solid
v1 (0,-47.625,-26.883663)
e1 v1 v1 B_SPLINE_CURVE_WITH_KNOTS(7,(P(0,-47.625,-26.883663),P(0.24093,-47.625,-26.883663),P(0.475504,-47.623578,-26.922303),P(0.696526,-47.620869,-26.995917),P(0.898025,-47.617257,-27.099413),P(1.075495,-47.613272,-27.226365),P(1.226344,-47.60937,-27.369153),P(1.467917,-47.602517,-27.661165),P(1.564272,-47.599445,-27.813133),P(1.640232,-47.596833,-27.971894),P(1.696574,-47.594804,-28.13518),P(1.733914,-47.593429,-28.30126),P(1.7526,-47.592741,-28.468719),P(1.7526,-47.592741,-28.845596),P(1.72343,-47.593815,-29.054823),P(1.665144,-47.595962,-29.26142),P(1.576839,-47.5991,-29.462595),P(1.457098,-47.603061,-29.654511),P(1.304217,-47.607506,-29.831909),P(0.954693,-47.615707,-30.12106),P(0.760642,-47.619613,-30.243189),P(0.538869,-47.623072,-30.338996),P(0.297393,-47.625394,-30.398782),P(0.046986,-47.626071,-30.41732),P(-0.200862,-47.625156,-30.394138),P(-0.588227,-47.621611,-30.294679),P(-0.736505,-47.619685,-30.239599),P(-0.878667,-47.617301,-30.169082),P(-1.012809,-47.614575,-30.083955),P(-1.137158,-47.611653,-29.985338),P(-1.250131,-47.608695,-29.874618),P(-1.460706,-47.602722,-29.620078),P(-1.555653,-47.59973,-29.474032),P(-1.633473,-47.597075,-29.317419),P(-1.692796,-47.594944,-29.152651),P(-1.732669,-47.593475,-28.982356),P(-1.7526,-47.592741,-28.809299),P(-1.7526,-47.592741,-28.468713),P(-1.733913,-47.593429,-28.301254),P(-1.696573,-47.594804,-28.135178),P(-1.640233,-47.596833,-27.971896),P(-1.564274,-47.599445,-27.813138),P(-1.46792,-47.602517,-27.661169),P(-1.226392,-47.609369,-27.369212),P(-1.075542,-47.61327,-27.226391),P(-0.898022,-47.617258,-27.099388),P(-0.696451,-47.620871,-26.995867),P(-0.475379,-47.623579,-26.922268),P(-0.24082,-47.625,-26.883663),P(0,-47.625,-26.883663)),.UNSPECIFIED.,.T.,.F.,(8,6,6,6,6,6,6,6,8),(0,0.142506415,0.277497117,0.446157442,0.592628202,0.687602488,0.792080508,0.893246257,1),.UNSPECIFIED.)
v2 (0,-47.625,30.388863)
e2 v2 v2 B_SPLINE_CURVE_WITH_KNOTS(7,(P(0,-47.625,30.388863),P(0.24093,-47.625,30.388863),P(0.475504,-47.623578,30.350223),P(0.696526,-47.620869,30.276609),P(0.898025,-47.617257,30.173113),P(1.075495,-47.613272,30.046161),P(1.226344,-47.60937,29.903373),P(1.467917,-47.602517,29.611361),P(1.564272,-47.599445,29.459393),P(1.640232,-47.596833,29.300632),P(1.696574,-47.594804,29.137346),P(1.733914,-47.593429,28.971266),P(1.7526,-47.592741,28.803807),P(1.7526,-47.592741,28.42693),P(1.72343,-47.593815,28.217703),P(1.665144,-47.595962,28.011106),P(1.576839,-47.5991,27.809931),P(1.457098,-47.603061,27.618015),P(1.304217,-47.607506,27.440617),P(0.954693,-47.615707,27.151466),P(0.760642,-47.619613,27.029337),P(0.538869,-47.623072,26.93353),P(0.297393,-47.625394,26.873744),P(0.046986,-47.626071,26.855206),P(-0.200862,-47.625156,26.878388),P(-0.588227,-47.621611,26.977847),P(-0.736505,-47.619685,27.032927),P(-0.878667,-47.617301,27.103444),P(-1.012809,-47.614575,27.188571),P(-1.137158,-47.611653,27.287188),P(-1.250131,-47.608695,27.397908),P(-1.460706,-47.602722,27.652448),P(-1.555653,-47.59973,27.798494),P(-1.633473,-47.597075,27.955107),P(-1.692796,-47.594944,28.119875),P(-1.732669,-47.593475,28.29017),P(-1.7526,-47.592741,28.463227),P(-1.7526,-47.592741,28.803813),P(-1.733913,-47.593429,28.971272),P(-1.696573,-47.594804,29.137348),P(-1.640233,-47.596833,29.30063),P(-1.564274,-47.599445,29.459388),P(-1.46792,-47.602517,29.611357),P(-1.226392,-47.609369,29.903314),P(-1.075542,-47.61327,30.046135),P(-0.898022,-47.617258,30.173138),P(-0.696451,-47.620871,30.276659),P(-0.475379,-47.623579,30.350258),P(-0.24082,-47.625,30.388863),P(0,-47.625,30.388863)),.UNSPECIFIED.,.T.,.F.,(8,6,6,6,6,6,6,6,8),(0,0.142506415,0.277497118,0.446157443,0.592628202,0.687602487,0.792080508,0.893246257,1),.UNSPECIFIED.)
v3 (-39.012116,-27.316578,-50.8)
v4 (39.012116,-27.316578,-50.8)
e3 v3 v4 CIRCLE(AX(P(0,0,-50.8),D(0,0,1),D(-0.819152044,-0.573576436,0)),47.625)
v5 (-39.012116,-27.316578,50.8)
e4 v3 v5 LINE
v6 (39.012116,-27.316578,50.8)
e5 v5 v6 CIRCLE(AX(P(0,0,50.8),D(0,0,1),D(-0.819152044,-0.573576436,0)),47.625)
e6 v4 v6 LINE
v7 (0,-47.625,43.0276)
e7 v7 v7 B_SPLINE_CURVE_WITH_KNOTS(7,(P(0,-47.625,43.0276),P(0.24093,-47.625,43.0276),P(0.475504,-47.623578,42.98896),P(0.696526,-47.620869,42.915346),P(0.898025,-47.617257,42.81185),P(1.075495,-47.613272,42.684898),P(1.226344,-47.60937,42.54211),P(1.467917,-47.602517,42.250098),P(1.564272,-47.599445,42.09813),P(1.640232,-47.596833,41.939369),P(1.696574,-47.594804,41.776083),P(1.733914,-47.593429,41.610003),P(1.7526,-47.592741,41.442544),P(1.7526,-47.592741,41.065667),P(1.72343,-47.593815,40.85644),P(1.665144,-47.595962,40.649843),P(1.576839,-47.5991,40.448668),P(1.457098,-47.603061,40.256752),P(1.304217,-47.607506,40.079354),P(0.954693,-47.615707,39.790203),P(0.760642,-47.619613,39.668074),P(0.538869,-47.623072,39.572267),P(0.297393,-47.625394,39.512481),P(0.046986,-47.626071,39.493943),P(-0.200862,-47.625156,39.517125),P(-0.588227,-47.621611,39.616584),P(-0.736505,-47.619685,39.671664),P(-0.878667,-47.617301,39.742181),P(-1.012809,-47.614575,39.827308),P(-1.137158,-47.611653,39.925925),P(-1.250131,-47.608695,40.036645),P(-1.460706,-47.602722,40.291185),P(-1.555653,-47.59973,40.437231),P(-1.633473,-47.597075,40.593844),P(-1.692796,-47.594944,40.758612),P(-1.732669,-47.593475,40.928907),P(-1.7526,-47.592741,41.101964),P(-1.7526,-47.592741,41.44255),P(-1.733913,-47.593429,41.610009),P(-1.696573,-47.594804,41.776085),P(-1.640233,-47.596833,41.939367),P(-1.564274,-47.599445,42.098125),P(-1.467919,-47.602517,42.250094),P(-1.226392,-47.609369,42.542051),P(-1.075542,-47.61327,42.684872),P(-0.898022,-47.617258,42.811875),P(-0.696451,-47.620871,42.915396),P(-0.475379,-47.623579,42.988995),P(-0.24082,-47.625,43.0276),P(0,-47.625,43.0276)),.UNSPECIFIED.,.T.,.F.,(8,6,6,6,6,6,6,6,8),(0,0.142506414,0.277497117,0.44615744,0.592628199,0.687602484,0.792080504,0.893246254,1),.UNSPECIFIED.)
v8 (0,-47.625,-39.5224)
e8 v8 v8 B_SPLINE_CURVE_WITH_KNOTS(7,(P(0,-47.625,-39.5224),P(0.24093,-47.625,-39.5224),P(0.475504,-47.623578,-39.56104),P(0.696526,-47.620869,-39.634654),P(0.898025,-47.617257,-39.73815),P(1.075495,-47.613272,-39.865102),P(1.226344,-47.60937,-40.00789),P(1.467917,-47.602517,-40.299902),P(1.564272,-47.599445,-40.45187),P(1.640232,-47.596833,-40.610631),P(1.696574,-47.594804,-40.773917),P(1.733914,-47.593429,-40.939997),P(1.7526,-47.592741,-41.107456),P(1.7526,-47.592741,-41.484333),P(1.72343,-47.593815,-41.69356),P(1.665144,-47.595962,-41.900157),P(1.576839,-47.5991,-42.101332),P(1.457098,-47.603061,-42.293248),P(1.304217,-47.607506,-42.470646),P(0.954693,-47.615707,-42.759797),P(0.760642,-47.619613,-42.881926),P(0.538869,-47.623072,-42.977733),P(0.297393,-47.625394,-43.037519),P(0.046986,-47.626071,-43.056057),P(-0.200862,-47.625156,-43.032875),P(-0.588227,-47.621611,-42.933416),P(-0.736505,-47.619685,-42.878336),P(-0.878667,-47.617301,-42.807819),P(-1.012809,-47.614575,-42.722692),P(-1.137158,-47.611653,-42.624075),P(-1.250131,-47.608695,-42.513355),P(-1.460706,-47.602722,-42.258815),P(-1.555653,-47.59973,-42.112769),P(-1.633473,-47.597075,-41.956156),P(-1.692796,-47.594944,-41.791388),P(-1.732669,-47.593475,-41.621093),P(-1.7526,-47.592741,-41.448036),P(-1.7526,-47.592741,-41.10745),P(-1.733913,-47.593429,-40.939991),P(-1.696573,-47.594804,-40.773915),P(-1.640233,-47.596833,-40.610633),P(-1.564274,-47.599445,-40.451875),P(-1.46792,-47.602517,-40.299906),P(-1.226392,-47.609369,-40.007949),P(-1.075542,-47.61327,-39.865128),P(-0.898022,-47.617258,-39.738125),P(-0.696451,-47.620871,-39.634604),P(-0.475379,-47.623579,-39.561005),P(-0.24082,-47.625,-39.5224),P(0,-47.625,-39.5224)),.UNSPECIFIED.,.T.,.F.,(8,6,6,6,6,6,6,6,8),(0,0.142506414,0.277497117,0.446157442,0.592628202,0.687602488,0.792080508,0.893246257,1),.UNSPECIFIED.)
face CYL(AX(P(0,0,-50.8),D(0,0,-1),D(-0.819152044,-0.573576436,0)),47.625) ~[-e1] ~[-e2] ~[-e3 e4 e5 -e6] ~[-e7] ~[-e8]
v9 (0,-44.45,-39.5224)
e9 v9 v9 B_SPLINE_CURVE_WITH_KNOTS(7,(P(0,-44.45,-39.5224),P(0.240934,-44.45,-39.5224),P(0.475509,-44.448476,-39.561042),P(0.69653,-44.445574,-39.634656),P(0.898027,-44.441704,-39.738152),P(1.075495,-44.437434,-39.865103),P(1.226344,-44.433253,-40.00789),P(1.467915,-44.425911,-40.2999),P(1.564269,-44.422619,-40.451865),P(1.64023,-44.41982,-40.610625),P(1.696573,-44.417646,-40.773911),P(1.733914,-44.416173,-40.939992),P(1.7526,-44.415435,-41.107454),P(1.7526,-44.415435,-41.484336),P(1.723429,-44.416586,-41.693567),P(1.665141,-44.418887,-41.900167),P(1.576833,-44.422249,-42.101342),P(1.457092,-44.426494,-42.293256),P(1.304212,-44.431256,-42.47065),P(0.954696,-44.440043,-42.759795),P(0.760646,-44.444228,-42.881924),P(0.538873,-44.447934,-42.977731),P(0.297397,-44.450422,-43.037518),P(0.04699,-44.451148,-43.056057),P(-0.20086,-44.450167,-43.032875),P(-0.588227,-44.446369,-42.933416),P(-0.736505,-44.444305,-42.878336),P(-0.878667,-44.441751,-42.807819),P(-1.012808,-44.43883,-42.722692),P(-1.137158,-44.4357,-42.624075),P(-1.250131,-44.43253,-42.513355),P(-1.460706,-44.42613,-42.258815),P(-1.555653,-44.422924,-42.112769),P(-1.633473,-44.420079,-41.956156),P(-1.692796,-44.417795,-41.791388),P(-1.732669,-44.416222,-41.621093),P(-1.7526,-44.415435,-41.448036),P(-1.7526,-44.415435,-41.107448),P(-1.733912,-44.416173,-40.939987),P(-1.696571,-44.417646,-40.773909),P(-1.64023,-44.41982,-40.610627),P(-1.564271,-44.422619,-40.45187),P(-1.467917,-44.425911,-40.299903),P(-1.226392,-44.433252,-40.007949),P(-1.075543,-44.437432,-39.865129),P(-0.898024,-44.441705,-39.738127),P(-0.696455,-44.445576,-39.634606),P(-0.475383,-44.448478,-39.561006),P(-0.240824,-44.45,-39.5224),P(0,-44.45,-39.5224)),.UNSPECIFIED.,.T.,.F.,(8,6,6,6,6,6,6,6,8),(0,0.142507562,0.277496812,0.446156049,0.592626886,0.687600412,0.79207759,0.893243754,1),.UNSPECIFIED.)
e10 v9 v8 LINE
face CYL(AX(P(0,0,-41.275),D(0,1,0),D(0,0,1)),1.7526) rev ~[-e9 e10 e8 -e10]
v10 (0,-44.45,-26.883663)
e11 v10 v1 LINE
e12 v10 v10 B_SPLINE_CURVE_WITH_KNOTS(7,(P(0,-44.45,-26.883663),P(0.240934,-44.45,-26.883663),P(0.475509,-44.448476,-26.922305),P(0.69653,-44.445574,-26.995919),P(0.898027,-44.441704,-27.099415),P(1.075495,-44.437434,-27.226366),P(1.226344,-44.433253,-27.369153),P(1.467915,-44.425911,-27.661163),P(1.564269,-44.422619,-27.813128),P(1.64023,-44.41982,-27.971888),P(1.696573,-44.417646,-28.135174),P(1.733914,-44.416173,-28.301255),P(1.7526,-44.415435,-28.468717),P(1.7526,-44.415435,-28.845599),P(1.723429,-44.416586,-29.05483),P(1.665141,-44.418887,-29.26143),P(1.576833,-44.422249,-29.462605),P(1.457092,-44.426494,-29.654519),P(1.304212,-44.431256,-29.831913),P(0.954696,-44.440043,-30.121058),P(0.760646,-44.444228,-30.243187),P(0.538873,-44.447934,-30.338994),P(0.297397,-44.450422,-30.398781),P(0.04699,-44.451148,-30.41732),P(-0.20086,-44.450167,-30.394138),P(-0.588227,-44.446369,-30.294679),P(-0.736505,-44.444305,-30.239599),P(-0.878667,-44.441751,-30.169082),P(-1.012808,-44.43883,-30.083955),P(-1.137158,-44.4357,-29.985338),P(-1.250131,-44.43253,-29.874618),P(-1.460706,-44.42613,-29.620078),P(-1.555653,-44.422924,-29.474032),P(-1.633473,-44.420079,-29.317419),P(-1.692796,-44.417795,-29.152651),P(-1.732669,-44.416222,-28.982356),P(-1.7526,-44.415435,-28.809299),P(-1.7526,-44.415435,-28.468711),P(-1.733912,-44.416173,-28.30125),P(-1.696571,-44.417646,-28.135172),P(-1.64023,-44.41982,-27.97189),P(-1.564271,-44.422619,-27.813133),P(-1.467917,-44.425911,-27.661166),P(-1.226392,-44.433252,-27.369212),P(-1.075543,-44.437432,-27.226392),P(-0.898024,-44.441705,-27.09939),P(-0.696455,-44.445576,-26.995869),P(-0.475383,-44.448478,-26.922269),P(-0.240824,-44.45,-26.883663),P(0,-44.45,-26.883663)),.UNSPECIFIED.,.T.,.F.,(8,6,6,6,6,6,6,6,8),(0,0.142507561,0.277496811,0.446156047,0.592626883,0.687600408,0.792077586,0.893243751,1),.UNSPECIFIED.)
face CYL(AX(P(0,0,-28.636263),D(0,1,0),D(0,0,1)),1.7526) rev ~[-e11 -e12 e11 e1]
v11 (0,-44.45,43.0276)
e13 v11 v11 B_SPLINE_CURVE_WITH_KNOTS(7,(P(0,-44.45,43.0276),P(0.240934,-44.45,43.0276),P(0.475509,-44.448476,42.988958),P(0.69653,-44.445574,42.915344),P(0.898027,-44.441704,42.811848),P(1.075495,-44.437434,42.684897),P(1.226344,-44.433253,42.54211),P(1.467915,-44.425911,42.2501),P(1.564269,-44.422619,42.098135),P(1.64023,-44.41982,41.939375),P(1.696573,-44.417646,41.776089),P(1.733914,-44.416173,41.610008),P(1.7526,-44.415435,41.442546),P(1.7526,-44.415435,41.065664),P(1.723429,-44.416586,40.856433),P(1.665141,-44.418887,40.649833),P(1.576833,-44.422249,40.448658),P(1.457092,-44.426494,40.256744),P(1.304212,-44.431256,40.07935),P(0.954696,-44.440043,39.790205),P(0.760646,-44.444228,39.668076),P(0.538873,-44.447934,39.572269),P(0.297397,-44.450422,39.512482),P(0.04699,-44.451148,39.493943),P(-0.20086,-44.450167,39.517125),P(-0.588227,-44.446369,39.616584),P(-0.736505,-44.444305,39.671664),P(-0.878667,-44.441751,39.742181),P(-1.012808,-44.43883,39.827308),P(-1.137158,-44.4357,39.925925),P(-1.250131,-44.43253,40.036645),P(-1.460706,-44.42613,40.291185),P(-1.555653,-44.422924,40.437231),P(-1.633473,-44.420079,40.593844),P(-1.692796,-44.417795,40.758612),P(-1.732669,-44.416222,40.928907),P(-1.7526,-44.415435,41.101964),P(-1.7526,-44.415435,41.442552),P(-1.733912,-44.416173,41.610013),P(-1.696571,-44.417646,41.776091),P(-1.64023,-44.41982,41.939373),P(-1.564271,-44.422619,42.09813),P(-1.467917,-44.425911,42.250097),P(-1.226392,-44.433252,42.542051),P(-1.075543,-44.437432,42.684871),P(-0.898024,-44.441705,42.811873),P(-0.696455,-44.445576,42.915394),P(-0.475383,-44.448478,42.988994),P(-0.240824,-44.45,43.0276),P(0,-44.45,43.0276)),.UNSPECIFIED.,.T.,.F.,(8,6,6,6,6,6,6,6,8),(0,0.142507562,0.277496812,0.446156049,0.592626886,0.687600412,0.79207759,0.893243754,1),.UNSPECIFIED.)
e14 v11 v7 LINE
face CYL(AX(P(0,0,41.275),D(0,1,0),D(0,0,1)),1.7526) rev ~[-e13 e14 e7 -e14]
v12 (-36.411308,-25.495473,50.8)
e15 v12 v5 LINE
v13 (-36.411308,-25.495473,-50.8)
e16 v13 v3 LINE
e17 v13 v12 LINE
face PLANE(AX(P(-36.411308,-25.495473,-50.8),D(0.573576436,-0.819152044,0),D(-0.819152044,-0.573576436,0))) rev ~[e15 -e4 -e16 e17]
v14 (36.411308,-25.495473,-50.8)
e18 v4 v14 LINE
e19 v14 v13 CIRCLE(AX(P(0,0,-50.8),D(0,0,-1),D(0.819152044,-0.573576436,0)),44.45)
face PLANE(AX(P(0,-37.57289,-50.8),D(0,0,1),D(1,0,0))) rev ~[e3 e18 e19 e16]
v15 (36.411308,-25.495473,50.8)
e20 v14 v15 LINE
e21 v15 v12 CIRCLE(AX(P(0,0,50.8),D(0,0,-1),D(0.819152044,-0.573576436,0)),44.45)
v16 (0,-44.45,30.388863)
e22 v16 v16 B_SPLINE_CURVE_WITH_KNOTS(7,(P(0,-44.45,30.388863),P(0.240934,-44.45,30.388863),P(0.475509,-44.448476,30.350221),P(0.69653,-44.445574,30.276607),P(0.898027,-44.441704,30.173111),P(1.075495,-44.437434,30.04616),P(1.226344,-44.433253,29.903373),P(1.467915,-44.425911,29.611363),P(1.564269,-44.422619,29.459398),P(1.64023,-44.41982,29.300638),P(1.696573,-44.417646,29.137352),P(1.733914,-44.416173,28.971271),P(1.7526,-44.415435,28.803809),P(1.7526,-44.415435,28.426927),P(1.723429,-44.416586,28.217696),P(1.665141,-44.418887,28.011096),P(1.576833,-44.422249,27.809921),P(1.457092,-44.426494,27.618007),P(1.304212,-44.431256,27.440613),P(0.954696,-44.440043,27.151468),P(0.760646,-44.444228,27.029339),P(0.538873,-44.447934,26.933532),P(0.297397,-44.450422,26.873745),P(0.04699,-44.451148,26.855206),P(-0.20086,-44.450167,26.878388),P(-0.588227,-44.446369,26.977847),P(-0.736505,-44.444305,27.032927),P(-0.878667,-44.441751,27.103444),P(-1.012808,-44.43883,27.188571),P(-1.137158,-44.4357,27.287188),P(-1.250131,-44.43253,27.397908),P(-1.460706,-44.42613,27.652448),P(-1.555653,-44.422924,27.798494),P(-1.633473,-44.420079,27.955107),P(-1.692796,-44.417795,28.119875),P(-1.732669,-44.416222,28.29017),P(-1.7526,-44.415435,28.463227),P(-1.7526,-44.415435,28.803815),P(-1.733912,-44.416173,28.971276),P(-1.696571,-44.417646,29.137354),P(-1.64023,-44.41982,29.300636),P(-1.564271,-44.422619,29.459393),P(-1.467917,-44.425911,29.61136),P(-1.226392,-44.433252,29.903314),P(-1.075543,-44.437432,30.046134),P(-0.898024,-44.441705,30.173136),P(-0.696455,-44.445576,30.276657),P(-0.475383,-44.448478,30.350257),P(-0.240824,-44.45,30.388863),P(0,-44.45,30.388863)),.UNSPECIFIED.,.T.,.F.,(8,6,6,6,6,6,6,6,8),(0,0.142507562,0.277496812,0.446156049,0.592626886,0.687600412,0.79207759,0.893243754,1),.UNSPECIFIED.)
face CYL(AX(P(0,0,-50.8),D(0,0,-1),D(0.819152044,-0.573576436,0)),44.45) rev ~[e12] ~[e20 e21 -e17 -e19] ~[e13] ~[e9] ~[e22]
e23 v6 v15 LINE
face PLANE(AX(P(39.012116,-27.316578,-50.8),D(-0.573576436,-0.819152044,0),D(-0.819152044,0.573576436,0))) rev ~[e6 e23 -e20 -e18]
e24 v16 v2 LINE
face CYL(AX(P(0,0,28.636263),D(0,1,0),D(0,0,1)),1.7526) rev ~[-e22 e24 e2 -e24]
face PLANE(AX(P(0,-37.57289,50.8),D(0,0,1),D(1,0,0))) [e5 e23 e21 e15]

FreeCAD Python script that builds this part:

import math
import FreeCAD as App
import Part
import Sketcher

V = App.Vector
Q = App.Units.Quantity

doc = App.newDocument("Part")
body = doc.addObject("PartDesign::Body", "Body")

sketch1 = body.newObject("Sketcher::SketchObject", "Sketch")
sketch1.AttachmentSupport = (doc.getObject("XY_Plane"), [""])
sketch1.MapMode = "FlatFace"
sketch1.addGeometry([
    Part.ArcOfCircle(Part.Circle(V(0, 0, 0), V(0, 0, 1), 44.5), math.radians(-145), math.radians(-35)),
    Part.LineSegment(V(-36.4, -25.5, 0), V(-39, -27.3, 0)),
    Part.ArcOfCircle(Part.Circle(V(0, 0, 0), V(0, 0, 1), 47.6), math.radians(-145), math.radians(-35)),
    Part.LineSegment(V(39, -27.3, 0), V(36.4, -25.5, 0)),
], False)
sketch1.addConstraint([
    Sketcher.Constraint("Coincident", 0, 1, 1, 1),
    Sketcher.Constraint("Coincident", 1, 2, 2, 1),
    Sketcher.Constraint("Coincident", 2, 2, 3, 1),
    Sketcher.Constraint("Coincident", 3, 2, 0, 2),
    Sketcher.Constraint("Coincident", 0, 3, -1, 1),
    Sketcher.Constraint("Coincident", 2, 3, -1, 1),
    Sketcher.Constraint("Horizontal", 1, 2, 2, 2),
    Sketcher.Constraint("Horizontal", 0, 1, 3, 2),
    Sketcher.Constraint("Radius", 0, Q("1.75 in")),
    Sketcher.Constraint("Angle", 1, Q("-145 deg")),
    Sketcher.Constraint("Radius", 2, Q("1.875 in")),
    Sketcher.Constraint("DistanceX", 0, 1, -1, 1, 36.411308),
])
pad1 = body.newObject("PartDesign::Pad", "Pad")
pad1.Profile = sketch1
pad1.Type = "TwoLengths"
pad1.Length = Q("2 in")
pad1.Length2 = Q("2 in")

sketch2 = body.newObject("Sketcher::SketchObject", "Sketch001")
sketch2.AttachmentSupport = (doc.getObject("XZ_Plane"), [""])
sketch2.MapMode = "FlatFace"
sketch2.addGeometry([
    Part.Circle(V(0, -41.3, 0), V(0, 0, 1), 1.8),
    Part.Circle(V(0, -28.6, 0), V(0, 0, 1), 1.8),
    Part.Circle(V(0, 28.6, 0), V(0, 0, 1), 1.8),
    Part.Circle(V(0, 41.3, 0), V(0, 0, 1), 1.8),
], False)
sketch2.addConstraint([
    Sketcher.Constraint("Equal", 0, 1),
    Sketcher.Constraint("Equal", 1, 2),
    Sketcher.Constraint("Equal", 2, 3),
    Sketcher.Constraint("Symmetric", 1, 3, 2, 3, -1, 1),
    Sketcher.Constraint("Symmetric", 0, 3, 3, 3, -1, 1),
    Sketcher.Constraint("PointOnObject", 0, 3, -2),
    Sketcher.Constraint("PointOnObject", 1, 3, -2),
    Sketcher.Constraint("Diameter", 0, Q("0.138 in")),
    Sketcher.Constraint("DistanceY", 0, 3, 3, 3, Q("3.25 in")),
    Sketcher.Constraint("DistanceY", 1, 3, -1, 1, 28.636263),
])
pocket1 = body.newObject("PartDesign::Pocket", "Pocket")
pocket1.Profile = sketch2
pocket1.Length = 96
pocket1.Reversed = True

doc.recompute()
